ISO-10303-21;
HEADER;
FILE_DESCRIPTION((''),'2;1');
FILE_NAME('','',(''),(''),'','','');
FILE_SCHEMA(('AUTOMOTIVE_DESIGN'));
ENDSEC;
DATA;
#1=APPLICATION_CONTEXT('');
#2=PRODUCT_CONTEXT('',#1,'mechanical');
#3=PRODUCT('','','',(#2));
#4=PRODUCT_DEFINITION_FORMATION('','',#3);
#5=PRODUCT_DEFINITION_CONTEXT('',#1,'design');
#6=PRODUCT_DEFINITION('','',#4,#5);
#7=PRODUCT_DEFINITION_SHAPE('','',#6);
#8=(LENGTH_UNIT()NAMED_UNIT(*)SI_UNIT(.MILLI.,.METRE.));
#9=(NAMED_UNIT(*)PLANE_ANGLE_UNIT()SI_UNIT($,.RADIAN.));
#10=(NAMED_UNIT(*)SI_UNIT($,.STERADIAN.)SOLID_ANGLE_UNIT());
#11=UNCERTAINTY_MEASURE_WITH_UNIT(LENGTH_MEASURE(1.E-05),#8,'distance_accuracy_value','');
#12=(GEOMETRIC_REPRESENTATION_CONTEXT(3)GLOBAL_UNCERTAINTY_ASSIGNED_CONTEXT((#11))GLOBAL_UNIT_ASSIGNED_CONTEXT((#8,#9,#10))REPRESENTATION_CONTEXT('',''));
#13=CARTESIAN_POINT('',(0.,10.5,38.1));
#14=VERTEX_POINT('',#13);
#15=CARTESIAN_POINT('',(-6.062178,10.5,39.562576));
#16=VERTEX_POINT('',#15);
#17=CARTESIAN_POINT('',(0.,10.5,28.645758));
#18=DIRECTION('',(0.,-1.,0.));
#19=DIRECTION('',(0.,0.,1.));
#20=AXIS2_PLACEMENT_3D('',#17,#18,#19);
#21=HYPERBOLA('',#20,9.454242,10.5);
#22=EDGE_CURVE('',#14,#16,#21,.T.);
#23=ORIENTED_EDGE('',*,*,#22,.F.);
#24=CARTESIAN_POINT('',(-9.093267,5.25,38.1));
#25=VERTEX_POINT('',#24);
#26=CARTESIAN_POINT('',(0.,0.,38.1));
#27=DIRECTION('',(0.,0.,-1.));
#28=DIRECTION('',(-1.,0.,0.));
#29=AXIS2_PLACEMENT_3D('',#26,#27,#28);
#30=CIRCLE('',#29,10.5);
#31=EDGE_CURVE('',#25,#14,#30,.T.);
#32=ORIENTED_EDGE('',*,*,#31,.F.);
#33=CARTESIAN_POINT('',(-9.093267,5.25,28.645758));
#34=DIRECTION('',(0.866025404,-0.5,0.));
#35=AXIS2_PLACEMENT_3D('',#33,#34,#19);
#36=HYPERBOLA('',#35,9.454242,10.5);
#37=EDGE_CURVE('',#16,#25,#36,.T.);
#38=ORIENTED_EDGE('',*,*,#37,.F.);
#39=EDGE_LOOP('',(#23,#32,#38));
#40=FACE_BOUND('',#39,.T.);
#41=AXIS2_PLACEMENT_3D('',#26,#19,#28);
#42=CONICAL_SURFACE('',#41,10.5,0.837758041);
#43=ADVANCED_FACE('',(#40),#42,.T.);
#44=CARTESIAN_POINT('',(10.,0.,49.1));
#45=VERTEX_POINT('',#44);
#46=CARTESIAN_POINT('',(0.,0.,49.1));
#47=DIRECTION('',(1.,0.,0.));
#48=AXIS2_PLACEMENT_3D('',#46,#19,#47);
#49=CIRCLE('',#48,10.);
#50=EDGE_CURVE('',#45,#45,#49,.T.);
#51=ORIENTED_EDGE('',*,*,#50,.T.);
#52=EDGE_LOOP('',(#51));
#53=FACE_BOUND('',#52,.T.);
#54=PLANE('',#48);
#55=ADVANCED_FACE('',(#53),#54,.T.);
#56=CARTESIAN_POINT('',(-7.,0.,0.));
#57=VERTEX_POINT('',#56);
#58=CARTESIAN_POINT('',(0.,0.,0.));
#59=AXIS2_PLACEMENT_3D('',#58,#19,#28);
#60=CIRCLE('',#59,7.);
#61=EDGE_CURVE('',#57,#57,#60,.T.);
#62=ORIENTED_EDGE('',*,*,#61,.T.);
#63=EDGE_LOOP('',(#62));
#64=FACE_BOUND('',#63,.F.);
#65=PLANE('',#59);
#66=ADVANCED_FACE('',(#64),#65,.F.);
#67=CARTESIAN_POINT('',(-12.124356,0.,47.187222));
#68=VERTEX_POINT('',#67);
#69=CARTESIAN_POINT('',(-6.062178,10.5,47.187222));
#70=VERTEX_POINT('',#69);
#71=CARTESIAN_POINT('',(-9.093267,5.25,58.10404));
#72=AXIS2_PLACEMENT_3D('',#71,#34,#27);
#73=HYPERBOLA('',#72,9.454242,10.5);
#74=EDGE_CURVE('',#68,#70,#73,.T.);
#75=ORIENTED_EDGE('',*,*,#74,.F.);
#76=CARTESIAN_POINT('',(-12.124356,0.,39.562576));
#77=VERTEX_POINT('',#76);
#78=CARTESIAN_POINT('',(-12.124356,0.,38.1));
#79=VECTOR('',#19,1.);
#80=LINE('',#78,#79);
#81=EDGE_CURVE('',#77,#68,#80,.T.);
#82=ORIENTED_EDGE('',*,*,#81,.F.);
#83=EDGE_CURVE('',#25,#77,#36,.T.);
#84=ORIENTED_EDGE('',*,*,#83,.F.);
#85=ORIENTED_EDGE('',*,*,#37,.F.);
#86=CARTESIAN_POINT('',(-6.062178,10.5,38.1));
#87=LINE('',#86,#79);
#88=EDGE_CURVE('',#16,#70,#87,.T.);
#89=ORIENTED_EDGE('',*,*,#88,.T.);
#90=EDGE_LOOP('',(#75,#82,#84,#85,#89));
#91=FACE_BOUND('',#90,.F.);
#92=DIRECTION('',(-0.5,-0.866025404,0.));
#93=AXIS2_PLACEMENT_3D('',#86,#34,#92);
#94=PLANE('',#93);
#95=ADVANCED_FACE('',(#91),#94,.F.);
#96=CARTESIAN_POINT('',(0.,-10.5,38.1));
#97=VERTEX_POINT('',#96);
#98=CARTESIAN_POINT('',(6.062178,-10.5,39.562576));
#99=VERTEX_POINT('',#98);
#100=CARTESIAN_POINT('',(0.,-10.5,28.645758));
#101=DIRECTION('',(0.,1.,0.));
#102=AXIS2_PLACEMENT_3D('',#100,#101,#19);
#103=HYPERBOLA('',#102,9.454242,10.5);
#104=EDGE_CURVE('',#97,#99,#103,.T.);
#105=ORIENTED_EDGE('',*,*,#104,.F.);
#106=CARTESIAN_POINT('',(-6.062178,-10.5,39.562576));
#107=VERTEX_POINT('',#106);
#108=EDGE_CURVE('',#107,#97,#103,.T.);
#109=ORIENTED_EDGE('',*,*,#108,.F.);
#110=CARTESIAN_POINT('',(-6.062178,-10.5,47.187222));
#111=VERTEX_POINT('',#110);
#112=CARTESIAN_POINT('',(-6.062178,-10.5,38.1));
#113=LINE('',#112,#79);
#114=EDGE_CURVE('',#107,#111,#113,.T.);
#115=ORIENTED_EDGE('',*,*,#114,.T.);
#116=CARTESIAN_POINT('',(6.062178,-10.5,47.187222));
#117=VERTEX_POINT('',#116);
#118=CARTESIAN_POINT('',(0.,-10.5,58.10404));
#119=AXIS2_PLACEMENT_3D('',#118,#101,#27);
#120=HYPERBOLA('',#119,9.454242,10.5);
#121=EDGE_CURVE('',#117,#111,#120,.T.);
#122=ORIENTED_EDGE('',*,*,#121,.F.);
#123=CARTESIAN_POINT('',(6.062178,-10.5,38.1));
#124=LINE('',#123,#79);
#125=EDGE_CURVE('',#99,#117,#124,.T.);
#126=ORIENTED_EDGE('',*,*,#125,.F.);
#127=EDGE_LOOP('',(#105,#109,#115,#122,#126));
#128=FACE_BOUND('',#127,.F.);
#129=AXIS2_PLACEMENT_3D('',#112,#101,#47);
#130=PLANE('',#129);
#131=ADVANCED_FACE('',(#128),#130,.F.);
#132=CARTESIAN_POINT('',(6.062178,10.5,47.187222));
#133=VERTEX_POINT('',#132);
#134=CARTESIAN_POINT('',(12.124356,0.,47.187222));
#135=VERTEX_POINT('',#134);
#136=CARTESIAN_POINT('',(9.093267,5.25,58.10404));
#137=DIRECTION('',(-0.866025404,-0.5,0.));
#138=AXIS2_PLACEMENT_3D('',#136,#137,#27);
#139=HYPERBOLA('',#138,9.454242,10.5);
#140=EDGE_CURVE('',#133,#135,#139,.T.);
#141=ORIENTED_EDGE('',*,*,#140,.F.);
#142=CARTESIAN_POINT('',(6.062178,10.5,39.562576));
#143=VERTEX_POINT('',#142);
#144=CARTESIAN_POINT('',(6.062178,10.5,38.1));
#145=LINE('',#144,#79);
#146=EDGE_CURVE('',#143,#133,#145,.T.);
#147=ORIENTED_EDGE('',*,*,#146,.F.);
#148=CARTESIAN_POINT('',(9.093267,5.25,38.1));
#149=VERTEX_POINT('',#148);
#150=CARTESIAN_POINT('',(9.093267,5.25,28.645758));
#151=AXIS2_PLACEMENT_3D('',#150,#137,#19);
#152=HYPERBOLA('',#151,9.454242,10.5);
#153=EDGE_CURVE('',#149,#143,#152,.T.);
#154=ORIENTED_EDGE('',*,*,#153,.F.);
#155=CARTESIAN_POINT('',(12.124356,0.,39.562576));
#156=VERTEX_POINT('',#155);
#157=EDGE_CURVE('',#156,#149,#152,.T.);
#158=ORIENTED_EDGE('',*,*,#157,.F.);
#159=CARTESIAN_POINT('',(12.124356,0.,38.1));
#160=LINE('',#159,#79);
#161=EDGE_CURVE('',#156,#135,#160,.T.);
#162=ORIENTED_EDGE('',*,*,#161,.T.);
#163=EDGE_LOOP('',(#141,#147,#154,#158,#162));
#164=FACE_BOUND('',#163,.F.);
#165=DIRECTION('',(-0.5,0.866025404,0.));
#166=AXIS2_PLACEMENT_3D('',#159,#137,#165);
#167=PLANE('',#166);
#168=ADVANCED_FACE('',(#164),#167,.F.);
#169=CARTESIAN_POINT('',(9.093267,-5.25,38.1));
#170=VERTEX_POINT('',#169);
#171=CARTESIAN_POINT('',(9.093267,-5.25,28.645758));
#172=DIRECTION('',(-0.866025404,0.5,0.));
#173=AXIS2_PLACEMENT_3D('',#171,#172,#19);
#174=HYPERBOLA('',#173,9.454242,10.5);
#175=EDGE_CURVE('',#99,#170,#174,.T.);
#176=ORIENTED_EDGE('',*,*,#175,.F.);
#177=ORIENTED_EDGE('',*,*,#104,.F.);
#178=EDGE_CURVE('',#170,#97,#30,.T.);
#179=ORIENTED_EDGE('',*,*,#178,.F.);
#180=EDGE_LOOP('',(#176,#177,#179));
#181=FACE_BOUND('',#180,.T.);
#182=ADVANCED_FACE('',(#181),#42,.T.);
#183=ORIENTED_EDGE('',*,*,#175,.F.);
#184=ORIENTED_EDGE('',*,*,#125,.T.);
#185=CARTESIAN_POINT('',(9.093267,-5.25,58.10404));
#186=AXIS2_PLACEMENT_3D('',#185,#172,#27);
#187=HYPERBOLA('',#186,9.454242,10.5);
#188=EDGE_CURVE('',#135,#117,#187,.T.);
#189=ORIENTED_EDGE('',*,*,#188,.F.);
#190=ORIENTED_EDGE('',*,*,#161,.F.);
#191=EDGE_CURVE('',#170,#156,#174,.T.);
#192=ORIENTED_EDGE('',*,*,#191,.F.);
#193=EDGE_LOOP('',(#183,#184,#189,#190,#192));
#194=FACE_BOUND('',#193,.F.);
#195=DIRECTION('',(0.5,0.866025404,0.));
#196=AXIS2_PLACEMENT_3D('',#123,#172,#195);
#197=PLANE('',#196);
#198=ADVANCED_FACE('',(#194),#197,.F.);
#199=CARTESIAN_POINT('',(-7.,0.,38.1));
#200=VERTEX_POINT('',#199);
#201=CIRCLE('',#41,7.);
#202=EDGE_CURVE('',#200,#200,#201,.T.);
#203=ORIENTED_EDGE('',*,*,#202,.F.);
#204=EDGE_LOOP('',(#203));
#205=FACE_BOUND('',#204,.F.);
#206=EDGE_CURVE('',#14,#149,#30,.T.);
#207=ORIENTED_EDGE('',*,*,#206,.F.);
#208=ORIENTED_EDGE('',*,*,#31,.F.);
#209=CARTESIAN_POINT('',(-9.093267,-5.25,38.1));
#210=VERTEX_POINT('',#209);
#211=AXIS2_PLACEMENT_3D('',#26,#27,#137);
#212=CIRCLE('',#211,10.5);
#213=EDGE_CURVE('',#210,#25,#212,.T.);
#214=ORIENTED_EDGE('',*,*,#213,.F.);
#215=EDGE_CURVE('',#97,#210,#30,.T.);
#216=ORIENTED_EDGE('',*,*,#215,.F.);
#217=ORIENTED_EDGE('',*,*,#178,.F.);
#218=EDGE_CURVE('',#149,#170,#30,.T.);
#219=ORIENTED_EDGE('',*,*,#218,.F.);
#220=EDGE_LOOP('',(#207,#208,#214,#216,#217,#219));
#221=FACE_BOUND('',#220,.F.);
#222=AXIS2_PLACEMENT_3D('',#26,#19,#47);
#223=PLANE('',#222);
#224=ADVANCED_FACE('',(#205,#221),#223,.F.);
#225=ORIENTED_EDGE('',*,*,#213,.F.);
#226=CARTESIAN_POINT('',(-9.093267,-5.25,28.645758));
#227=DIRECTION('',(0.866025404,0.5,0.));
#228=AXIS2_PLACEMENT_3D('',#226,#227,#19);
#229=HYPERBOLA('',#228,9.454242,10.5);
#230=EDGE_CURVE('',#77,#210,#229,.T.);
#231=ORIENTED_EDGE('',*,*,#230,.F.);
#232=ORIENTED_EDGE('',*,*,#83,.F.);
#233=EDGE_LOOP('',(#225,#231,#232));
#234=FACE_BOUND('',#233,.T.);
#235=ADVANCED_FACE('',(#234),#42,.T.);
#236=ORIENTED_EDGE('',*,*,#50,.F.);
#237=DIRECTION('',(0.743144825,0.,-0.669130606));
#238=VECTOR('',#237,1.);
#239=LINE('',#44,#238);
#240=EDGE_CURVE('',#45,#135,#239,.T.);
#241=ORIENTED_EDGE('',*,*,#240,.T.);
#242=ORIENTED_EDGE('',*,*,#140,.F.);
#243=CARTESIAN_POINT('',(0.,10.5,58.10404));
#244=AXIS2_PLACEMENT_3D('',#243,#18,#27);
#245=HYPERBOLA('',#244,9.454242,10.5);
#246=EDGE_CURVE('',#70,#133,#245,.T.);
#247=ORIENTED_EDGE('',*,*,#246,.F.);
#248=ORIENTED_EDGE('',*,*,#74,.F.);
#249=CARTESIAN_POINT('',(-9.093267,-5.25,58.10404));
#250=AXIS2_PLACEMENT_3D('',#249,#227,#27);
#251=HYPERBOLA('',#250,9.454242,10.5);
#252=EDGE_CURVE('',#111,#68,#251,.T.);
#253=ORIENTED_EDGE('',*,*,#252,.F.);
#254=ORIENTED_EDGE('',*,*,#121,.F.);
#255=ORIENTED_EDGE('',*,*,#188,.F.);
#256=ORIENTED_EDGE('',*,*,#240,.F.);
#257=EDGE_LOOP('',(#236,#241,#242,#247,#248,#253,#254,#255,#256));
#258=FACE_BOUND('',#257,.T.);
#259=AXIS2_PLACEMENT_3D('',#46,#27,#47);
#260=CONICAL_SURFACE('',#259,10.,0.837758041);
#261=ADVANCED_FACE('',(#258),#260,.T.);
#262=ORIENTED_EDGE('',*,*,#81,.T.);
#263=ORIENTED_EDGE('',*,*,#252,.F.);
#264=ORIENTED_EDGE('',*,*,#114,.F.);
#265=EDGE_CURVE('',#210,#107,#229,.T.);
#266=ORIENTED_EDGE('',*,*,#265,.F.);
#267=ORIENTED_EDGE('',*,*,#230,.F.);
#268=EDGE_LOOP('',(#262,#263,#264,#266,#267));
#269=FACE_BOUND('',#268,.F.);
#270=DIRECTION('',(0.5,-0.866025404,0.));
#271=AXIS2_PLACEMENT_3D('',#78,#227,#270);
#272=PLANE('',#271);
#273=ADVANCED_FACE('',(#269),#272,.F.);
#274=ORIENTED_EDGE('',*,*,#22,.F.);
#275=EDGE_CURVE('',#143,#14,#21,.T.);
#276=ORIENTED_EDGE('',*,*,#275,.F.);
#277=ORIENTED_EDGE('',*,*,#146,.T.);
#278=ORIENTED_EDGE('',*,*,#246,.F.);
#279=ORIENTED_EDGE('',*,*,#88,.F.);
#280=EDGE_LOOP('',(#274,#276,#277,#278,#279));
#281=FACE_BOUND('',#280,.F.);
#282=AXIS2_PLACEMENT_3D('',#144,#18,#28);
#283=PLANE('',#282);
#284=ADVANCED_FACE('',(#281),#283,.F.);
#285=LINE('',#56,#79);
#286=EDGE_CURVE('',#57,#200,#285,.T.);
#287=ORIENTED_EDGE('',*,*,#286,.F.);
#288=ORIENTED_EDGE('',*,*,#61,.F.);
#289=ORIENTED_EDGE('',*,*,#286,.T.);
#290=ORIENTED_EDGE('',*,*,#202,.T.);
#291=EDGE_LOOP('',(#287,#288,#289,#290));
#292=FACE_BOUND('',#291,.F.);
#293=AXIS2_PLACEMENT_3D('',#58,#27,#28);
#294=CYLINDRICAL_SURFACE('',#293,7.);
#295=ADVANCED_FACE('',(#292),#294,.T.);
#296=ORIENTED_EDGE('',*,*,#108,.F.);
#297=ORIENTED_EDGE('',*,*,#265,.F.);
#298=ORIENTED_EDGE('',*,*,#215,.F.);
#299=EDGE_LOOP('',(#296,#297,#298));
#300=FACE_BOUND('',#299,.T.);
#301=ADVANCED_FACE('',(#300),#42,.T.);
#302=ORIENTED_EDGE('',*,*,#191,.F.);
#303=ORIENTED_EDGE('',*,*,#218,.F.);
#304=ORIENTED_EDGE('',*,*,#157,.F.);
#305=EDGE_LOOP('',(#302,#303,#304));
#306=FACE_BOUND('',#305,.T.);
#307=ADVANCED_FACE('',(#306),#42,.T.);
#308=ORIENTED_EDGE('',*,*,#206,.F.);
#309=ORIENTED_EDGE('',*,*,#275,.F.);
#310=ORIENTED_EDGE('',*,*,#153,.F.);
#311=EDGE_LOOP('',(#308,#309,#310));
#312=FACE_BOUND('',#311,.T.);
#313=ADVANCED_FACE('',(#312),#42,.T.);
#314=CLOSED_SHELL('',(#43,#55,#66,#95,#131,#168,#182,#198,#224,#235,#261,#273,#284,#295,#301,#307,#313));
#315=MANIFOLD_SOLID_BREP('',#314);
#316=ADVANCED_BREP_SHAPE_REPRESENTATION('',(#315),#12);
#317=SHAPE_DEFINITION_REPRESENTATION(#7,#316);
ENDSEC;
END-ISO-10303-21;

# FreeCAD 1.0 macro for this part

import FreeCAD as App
import Part
import Sketcher
Q = App.Units.Quantity


def faces_at(feature, points):
    """Names of the faces that lie closest to the given points."""
    faces = feature.Shape.Faces
    near = lambda p: min(range(len(faces)), key=lambda i: faces[i].distToShape(Part.Vertex(*p))[0])
    return sorted({f"Face{near(p) + 1}" for p in points})

doc = App.newDocument("Part")
params = doc.addObject("Spreadsheet::Sheet", "Params")
for row, (alias, value) in enumerate([
    ("sketch1_diameter", "14 mm"),
    ("pad1_length", "38.1 mm"),
    ("pad2_length", "11 mm"),
    ("sketch3_diameter", "55 mm"),
    ("sketch3_diameter2", "20 mm"),
    ("pad3_length", "8 mm"),
    ("draft_angle", "48 deg"),
    ("sketch4_diameter", "21 mm"),
    ("pad4_length", "11 mm"),
    ("draft2_angle", "48 deg"),
], start=1):
    params.set(f"A{row}", alias)
    params.set(f"B{row}", "=" + value)
    params.setAlias(f"B{row}", alias)

body = doc.addObject("PartDesign::Body", "Body")

sketch1 = body.newObject("Sketcher::SketchObject", "Sketch")
sketch1.AttachmentSupport = (doc.getObject("XY_Plane"), [""])
sketch1.MapMode = "FlatFace"
sketch1.addGeometry(Part.Circle(App.Vector(0, 0, 0), App.Vector(0, 0, 1), 7), False)
sketch1.addConstraint(Sketcher.Constraint("Coincident", 0, 3, -1, 1))
sketch1.addConstraint(Sketcher.Constraint("Diameter", 0, 14.0))
sketch1.setExpression("Constraints[1]", "Params.sketch1_diameter")
pad1 = body.newObject("PartDesign::Pad", "Pad")
pad1.Profile = sketch1
pad1.setExpression("Length", "Params.pad1_length")

sketch2 = body.newObject("Sketcher::SketchObject", "Sketch001")
sketch2.AttachmentSupport = (doc.getObject("XY_Plane"), [""])
sketch2.MapMode = "FlatFace"
sketch2.AttachmentOffset = App.Placement(App.Vector(0, 0, 38.1), App.Rotation())
sketch2.addGeometry(Part.LineSegment(App.Vector(12, 0, 0), App.Vector(6, 10, 0)), False)
sketch2.addGeometry(Part.LineSegment(App.Vector(6, 10, 0), App.Vector(-6, 10, 0)), False)
sketch2.addGeometry(Part.LineSegment(App.Vector(-6, 10, 0), App.Vector(-12, 0, 0)), False)
sketch2.addGeometry(Part.LineSegment(App.Vector(-12, 0, 0), App.Vector(-6, -10, 0)), False)
sketch2.addGeometry(Part.LineSegment(App.Vector(-6, -10, 0), App.Vector(6, -10, 0)), False)
sketch2.addGeometry(Part.LineSegment(App.Vector(6, -10, 0), App.Vector(12, 0, 0)), False)
sketch2.addConstraint(Sketcher.Constraint("Coincident", 0, 2, 1, 1))
sketch2.addConstraint(Sketcher.Constraint("Coincident", 1, 2, 2, 1))
sketch2.addConstraint(Sketcher.Constraint("Coincident", 2, 2, 3, 1))
sketch2.addConstraint(Sketcher.Constraint("Coincident", 3, 2, 4, 1))
sketch2.addConstraint(Sketcher.Constraint("Coincident", 4, 2, 5, 1))
sketch2.addConstraint(Sketcher.Constraint("Coincident", 5, 2, 0, 1))
sketch2.addConstraint(Sketcher.Constraint("Horizontal", 1))
sketch2.addConstraint(Sketcher.Constraint("Horizontal", 4))
sketch2.addConstraint(Sketcher.Constraint("Symmetric", 0, 2, 3, 2, -1, 1))
sketch2.addConstraint(Sketcher.Constraint("Symmetric", 2, 2, 5, 2, -1, 1))
sketch2.addConstraint(Sketcher.Constraint("PointOnObject", 2, 2, -1))
sketch2.addConstraint(Sketcher.Constraint("Parallel", 2, 5))
sketch2.addConstraint(Sketcher.Constraint("Vertical", 1, 2, 3, 2))
sketch2.addConstraint(Sketcher.Constraint("Angle", 0, Q("120 deg")))
sketch2.addConstraint(Sketcher.Constraint("DistanceY", 3, 2, 1, 2, 21.0))
sketch2.addConstraint(Sketcher.Constraint("DistanceX", 1, 2, 1, 1, 12.124356))
pad2 = body.newObject("PartDesign::Pad", "Pad001")
pad2.Profile = sketch2
pad2.setExpression("Length", "Params.pad2_length")
body2 = doc.addObject("PartDesign::Body", "Body001")

sketch3 = body2.newObject("Sketcher::SketchObject", "Sketch002")
sketch3.AttachmentSupport = (doc.getObject("XY_Plane001"), [""])
sketch3.MapMode = "FlatFace"
sketch3.AttachmentOffset = App.Placement(App.Vector(0, 0, 49.1), App.Rotation())
sketch3.addGeometry(Part.Circle(App.Vector(0, 0, 0), App.Vector(0, 0, 1), 28), False)
sketch3.addGeometry(Part.Circle(App.Vector(0, 0, 0), App.Vector(0, 0, 1), 10), False)
sketch3.addConstraint(Sketcher.Constraint("Coincident", 0, 3, -1, 1))
sketch3.addConstraint(Sketcher.Constraint("Coincident", 1, 3, -1, 1))
sketch3.addConstraint(Sketcher.Constraint("Diameter", 0, 55.0))
sketch3.addConstraint(Sketcher.Constraint("Diameter", 1, 20.0))
sketch3.setExpression("Constraints[2]", "Params.sketch3_diameter")
sketch3.setExpression("Constraints[3]", "Params.sketch3_diameter2")
pad3 = body2.newObject("PartDesign::Pad", "Pad002")
pad3.Profile = sketch3
pad3.setExpression("Length", "Params.pad3_length")
pad3.Reversed = True
doc.recompute()

datumplane = body2.newObject("PartDesign::Plane", "DatumPlane")
datumplane.AttachmentSupport = (doc.getObject("XY_Plane001"), [""])
datumplane.MapMode = "FlatFace"
datumplane.AttachmentOffset = App.Placement(App.Vector(0, 0, 49.1), App.Rotation())
draft = body2.newObject("PartDesign::Draft", "Draft")
draft.Base = (pad3, faces_at(pad3, [(-27.5, 0, 45.1), (-10, 0, 45.1)]))
draft.NeutralPlane = (datumplane, [""])
draft.setExpression("Angle", "Params.draft_angle")
draft.Reversed = True
doc.recompute()

boolean = body.newObject("PartDesign::Boolean", "Boolean")
boolean.Type = "Cut"
boolean.addObjects([body2])
body3 = doc.addObject("PartDesign::Body", "Body002")

sketch4 = body3.newObject("Sketcher::SketchObject", "Sketch003")
sketch4.AttachmentSupport = (doc.getObject("XY_Plane002"), [""])
sketch4.MapMode = "FlatFace"
sketch4.AttachmentOffset = App.Placement(App.Vector(0, 0, 38.1), App.Rotation())
sketch4.addGeometry(Part.Circle(App.Vector(0, 0, 0), App.Vector(0, 0, 1), 38), False)
sketch4.addGeometry(Part.Circle(App.Vector(0, 0, 0), App.Vector(0, 0, 1), 10), False)
sketch4.addConstraint(Sketcher.Constraint("Coincident", 0, 3, -1, 1))
sketch4.addConstraint(Sketcher.Constraint("Coincident", 1, 3, -1, 1))
sketch4.addConstraint(Sketcher.Constraint("Diameter", 1, 21.0))
sketch4.addConstraint(Sketcher.Constraint("Diameter", 0, 75.919599))
sketch4.setExpression("Constraints[2]", "Params.sketch4_diameter")
pad4 = body3.newObject("PartDesign::Pad", "Pad003")
pad4.Profile = sketch4
pad4.setExpression("Length", "Params.pad4_length")
doc.recompute()

datumplane2 = body3.newObject("PartDesign::Plane", "DatumPlane001")
datumplane2.AttachmentSupport = (doc.getObject("XY_Plane002"), [""])
datumplane2.MapMode = "FlatFace"
datumplane2.AttachmentOffset = App.Placement(App.Vector(0, 0, 38.1), App.Rotation())
draft2 = body3.newObject("PartDesign::Draft", "Draft001")
draft2.Base = (pad4, faces_at(pad4, [(37.96, 0, 43.6), (10.5, 0, 43.6)]))
draft2.NeutralPlane = (datumplane2, [""])
draft2.setExpression("Angle", "Params.draft2_angle")
draft2.Reversed = False
doc.recompute()

boolean2 = body.newObject("PartDesign::Boolean", "Boolean001")
boolean2.Type = "Cut"
boolean2.addObjects([body3])

doc.recompute()
